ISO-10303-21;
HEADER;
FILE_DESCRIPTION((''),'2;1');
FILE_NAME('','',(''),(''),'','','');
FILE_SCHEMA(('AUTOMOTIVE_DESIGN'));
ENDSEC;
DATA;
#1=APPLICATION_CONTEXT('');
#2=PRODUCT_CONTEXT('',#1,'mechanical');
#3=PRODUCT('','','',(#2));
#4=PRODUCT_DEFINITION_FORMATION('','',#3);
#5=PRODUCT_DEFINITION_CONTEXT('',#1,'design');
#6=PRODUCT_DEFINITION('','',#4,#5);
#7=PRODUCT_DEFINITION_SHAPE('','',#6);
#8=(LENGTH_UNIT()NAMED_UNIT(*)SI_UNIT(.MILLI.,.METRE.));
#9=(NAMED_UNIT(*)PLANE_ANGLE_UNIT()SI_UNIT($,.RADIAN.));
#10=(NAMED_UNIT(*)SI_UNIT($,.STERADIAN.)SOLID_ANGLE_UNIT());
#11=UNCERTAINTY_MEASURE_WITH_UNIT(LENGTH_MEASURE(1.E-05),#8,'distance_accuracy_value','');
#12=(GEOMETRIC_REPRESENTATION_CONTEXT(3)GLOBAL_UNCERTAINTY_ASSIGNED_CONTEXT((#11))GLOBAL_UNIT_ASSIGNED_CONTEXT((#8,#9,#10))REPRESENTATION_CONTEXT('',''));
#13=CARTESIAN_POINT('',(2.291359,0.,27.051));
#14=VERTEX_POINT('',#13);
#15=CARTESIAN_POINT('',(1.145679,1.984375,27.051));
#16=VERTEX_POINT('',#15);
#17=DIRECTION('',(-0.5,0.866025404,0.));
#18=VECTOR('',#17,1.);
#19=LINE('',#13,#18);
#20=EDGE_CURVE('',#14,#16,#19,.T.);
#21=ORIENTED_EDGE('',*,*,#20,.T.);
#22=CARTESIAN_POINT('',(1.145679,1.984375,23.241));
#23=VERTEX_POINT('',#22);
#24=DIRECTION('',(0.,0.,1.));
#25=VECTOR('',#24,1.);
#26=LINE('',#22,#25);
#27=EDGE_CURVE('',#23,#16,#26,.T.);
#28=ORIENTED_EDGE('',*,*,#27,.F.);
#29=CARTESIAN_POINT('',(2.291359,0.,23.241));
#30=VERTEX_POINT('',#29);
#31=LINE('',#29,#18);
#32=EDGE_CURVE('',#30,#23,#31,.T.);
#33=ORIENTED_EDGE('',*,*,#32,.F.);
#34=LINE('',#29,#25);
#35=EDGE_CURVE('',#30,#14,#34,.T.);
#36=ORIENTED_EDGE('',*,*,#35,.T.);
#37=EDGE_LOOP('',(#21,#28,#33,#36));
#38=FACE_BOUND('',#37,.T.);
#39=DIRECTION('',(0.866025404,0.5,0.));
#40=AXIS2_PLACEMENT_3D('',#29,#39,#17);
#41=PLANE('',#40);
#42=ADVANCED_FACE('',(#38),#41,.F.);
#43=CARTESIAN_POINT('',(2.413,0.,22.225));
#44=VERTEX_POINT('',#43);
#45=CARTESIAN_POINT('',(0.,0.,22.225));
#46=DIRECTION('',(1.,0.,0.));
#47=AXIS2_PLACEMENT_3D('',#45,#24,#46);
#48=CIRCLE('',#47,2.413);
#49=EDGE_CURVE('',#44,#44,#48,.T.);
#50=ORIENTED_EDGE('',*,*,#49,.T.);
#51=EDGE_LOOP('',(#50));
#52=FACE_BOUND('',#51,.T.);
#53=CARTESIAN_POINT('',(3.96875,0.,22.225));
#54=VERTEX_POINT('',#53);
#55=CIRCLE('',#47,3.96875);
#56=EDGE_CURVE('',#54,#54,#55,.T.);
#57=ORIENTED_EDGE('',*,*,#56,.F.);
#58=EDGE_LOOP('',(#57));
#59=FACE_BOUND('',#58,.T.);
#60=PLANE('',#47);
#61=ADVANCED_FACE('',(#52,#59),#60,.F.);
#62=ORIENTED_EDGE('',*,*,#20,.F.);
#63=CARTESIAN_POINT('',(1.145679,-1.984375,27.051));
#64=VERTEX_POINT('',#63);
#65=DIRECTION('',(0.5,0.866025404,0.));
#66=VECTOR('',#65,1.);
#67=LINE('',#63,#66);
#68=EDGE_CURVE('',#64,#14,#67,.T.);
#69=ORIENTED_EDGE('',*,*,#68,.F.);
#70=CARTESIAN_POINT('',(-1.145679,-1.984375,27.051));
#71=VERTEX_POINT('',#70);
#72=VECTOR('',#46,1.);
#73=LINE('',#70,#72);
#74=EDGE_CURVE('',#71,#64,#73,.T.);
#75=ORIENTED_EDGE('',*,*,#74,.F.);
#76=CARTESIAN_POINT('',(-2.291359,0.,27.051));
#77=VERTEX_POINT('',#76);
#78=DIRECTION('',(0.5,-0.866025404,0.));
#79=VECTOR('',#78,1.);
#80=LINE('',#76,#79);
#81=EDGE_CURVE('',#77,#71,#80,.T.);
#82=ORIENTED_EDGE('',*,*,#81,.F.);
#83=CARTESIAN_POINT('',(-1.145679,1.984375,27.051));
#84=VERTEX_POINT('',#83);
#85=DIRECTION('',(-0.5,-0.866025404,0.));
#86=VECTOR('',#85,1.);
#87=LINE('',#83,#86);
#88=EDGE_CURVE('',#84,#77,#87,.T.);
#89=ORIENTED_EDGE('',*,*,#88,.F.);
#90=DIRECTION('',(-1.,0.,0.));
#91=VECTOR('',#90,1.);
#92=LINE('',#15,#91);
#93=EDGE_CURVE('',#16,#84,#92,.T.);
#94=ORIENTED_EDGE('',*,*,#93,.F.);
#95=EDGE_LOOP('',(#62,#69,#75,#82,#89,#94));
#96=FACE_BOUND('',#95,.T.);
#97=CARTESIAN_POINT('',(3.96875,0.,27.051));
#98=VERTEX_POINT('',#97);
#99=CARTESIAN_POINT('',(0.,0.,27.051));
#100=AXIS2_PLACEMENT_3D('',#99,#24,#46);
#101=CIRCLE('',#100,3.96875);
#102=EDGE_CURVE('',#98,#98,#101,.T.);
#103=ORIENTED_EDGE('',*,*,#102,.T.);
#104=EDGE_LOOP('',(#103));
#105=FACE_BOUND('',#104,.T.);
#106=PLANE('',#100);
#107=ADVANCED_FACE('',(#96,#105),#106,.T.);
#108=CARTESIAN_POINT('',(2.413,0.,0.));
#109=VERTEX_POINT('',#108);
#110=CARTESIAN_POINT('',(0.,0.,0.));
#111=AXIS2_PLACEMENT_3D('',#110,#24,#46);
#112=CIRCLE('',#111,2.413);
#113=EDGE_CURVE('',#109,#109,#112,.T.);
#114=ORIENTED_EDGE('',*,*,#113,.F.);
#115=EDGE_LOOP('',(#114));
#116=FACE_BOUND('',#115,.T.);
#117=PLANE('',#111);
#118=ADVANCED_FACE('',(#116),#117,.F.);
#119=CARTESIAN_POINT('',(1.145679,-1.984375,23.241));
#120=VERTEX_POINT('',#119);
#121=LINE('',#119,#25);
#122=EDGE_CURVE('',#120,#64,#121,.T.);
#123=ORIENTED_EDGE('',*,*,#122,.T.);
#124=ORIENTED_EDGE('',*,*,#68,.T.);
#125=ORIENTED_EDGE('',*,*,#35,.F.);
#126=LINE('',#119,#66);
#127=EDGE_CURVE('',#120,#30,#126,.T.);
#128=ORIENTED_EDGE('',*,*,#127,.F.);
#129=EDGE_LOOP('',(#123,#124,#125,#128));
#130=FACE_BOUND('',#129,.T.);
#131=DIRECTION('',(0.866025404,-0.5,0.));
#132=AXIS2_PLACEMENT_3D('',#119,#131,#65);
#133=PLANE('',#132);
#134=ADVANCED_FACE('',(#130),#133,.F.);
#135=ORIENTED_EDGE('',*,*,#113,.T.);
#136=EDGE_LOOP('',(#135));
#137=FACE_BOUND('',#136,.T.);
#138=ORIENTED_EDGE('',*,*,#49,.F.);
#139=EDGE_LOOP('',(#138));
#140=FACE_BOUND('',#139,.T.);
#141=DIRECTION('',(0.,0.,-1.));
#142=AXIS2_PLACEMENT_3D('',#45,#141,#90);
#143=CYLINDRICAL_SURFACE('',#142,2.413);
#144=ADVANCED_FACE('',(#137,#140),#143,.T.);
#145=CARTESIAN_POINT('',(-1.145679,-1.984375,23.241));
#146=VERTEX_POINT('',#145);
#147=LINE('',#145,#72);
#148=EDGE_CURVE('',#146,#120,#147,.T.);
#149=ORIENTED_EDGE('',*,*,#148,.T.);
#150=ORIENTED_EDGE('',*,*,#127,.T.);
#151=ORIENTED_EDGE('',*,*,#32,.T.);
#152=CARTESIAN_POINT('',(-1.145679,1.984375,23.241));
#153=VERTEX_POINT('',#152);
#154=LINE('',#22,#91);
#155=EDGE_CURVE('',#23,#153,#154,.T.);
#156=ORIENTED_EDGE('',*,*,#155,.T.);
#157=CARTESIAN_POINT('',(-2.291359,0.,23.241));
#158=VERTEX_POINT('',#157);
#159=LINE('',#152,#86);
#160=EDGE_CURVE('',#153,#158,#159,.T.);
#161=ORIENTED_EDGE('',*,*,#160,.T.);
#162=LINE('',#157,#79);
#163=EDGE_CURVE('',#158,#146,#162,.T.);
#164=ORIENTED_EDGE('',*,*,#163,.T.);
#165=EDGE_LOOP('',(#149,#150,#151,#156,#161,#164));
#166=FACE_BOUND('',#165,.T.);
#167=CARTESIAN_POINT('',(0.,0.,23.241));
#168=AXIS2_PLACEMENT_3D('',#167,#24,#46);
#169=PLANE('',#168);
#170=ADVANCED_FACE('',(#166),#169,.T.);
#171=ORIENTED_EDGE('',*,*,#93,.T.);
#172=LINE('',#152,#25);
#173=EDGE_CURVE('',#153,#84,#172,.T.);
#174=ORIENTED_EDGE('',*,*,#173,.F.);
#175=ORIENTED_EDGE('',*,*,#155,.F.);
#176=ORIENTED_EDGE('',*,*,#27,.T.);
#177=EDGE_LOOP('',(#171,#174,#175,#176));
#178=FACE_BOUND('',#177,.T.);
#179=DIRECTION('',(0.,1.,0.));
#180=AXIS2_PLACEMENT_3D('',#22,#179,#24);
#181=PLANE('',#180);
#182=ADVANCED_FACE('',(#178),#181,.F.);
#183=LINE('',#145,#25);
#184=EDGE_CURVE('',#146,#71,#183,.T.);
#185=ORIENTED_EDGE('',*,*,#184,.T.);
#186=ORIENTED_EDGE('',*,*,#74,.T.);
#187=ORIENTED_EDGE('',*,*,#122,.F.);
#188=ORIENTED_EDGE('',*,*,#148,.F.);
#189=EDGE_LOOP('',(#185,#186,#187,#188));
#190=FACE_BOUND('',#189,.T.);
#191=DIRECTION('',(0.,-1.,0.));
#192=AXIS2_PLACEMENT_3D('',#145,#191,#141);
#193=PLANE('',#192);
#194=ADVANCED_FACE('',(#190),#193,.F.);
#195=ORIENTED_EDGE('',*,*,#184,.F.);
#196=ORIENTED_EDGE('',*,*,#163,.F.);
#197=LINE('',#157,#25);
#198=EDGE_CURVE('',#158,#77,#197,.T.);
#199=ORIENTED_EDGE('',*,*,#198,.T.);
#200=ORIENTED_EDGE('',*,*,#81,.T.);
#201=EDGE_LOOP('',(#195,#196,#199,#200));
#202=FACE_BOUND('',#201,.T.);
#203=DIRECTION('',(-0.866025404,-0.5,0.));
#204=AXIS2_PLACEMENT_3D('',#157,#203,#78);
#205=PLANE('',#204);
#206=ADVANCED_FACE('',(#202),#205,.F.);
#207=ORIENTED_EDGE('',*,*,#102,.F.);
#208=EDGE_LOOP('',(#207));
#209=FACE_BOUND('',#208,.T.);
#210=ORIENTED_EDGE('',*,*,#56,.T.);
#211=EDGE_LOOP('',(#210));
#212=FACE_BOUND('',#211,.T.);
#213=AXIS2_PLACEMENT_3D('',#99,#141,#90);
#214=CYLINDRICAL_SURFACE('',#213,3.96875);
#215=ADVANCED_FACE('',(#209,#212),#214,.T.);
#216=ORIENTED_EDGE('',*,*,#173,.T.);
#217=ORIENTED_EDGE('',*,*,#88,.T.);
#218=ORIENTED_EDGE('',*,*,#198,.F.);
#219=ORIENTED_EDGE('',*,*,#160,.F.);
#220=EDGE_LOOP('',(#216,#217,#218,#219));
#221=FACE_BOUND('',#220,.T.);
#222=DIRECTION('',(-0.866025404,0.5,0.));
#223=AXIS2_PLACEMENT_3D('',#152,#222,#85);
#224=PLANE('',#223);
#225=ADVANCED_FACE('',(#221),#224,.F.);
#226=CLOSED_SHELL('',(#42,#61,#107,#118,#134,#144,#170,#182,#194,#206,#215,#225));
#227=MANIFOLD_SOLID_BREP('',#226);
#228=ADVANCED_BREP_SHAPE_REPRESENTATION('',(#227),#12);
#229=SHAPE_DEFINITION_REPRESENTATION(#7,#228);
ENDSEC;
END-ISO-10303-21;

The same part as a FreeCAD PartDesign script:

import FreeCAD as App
import Part
import Sketcher
Q = App.Units.Quantity


def add_polygon(sketch, points):
    """Adds a closed chain of lines whose ends are joined by coincident constraints."""
    first, n = sketch.GeometryCount, len(points)
    for a, b in zip(points, points[1:] + points[:1]):
        sketch.addGeometry(Part.LineSegment(App.Vector(*a, 0), App.Vector(*b, 0)), False)
    for i in range(n):
        sketch.addConstraint(Sketcher.Constraint("Coincident", first + i, 2, first + (i + 1) % n, 1))

doc = App.newDocument("Part")
body = doc.addObject("PartDesign::Body", "Body")

sketch1 = doc.addObject("Sketcher::SketchObject", "Sketch")
body.addObject(sketch1)
sketch1.AttachmentSupport = (doc.XY_Plane, [""])
sketch1.MapMode = "FlatFace"
sketch1.addGeometry(Part.Circle(App.Vector(0, 0, 0), App.Vector(0, 0, 1), 2.413), False)
sketch1.addConstraint([
    Sketcher.Constraint("Coincident", 0, 3, -1, 1),
    Sketcher.Constraint("Diameter", 0, Q("0.19 in")),
])
pad1 = doc.addObject("PartDesign::Pad", "Pad")
body.addObject(pad1)
pad1.Profile = sketch1
pad1.Length = Q("0.875 in")

sketch2 = doc.addObject("Sketcher::SketchObject", "Sketch001")
body.addObject(sketch2)
sketch2.AttachmentSupport = (doc.XY_Plane, [""])
sketch2.MapMode = "FlatFace"
sketch2.AttachmentOffset = App.Placement(App.Vector(0, 0, 0.875 * 25.4), App.Rotation())
sketch2.addGeometry(Part.Circle(App.Vector(0, 0, 0), App.Vector(0, 0, 1), 3.96875), False)
sketch2.addConstraint([
    Sketcher.Constraint("Coincident", 0, 3, -1, 1),
    Sketcher.Constraint("Diameter", 0, Q("0.3125 in")),
])
pad2 = doc.addObject("PartDesign::Pad", "Pad001")
body.addObject(pad2)
pad2.Profile = sketch2
pad2.Length = Q("0.19 in")

sketch3 = doc.addObject("Sketcher::SketchObject", "Sketch002")
body.addObject(sketch3)
sketch3.AttachmentSupport = (doc.XY_Plane, [""])
sketch3.MapMode = "FlatFace"
sketch3.AttachmentOffset = App.Placement(App.Vector(0, 0, 1.065 * 25.4), App.Rotation())
add_polygon(sketch3, [(2.291359, 0), (1.145679, 1.984375), (-1.145679, 1.984375), (-2.291359, 0), (-1.145679, -1.984375), (1.145679, -1.984375)])
sketch3.addConstraint([
    Sketcher.Constraint("Horizontal", 1),
    Sketcher.Constraint("Horizontal", 4),
    Sketcher.Constraint("Symmetric", 0, 2, 3, 2, -1, 1),
    Sketcher.Constraint("Symmetric", 2, 2, 5, 2, -1, 1),
    Sketcher.Constraint("PointOnObject", 2, 2, -1),
    Sketcher.Constraint("Parallel", 2, 5),
    Sketcher.Constraint("Vertical", 1, 2, 3, 2),
    Sketcher.Constraint("Angle", 0, Q("120 deg")),
    Sketcher.Constraint("DistanceY", -1, 1, 0, 2, Q("0.078125 in")),
    Sketcher.Constraint("DistanceX", 1, 2, 1, 1, Q("2.291359 mm")),
])
pocket1 = doc.addObject("PartDesign::Pocket", "Pocket")
body.addObject(pocket1)
pocket1.Profile = sketch3
pocket1.Length = Q("0.15 in")

doc.recompute()
